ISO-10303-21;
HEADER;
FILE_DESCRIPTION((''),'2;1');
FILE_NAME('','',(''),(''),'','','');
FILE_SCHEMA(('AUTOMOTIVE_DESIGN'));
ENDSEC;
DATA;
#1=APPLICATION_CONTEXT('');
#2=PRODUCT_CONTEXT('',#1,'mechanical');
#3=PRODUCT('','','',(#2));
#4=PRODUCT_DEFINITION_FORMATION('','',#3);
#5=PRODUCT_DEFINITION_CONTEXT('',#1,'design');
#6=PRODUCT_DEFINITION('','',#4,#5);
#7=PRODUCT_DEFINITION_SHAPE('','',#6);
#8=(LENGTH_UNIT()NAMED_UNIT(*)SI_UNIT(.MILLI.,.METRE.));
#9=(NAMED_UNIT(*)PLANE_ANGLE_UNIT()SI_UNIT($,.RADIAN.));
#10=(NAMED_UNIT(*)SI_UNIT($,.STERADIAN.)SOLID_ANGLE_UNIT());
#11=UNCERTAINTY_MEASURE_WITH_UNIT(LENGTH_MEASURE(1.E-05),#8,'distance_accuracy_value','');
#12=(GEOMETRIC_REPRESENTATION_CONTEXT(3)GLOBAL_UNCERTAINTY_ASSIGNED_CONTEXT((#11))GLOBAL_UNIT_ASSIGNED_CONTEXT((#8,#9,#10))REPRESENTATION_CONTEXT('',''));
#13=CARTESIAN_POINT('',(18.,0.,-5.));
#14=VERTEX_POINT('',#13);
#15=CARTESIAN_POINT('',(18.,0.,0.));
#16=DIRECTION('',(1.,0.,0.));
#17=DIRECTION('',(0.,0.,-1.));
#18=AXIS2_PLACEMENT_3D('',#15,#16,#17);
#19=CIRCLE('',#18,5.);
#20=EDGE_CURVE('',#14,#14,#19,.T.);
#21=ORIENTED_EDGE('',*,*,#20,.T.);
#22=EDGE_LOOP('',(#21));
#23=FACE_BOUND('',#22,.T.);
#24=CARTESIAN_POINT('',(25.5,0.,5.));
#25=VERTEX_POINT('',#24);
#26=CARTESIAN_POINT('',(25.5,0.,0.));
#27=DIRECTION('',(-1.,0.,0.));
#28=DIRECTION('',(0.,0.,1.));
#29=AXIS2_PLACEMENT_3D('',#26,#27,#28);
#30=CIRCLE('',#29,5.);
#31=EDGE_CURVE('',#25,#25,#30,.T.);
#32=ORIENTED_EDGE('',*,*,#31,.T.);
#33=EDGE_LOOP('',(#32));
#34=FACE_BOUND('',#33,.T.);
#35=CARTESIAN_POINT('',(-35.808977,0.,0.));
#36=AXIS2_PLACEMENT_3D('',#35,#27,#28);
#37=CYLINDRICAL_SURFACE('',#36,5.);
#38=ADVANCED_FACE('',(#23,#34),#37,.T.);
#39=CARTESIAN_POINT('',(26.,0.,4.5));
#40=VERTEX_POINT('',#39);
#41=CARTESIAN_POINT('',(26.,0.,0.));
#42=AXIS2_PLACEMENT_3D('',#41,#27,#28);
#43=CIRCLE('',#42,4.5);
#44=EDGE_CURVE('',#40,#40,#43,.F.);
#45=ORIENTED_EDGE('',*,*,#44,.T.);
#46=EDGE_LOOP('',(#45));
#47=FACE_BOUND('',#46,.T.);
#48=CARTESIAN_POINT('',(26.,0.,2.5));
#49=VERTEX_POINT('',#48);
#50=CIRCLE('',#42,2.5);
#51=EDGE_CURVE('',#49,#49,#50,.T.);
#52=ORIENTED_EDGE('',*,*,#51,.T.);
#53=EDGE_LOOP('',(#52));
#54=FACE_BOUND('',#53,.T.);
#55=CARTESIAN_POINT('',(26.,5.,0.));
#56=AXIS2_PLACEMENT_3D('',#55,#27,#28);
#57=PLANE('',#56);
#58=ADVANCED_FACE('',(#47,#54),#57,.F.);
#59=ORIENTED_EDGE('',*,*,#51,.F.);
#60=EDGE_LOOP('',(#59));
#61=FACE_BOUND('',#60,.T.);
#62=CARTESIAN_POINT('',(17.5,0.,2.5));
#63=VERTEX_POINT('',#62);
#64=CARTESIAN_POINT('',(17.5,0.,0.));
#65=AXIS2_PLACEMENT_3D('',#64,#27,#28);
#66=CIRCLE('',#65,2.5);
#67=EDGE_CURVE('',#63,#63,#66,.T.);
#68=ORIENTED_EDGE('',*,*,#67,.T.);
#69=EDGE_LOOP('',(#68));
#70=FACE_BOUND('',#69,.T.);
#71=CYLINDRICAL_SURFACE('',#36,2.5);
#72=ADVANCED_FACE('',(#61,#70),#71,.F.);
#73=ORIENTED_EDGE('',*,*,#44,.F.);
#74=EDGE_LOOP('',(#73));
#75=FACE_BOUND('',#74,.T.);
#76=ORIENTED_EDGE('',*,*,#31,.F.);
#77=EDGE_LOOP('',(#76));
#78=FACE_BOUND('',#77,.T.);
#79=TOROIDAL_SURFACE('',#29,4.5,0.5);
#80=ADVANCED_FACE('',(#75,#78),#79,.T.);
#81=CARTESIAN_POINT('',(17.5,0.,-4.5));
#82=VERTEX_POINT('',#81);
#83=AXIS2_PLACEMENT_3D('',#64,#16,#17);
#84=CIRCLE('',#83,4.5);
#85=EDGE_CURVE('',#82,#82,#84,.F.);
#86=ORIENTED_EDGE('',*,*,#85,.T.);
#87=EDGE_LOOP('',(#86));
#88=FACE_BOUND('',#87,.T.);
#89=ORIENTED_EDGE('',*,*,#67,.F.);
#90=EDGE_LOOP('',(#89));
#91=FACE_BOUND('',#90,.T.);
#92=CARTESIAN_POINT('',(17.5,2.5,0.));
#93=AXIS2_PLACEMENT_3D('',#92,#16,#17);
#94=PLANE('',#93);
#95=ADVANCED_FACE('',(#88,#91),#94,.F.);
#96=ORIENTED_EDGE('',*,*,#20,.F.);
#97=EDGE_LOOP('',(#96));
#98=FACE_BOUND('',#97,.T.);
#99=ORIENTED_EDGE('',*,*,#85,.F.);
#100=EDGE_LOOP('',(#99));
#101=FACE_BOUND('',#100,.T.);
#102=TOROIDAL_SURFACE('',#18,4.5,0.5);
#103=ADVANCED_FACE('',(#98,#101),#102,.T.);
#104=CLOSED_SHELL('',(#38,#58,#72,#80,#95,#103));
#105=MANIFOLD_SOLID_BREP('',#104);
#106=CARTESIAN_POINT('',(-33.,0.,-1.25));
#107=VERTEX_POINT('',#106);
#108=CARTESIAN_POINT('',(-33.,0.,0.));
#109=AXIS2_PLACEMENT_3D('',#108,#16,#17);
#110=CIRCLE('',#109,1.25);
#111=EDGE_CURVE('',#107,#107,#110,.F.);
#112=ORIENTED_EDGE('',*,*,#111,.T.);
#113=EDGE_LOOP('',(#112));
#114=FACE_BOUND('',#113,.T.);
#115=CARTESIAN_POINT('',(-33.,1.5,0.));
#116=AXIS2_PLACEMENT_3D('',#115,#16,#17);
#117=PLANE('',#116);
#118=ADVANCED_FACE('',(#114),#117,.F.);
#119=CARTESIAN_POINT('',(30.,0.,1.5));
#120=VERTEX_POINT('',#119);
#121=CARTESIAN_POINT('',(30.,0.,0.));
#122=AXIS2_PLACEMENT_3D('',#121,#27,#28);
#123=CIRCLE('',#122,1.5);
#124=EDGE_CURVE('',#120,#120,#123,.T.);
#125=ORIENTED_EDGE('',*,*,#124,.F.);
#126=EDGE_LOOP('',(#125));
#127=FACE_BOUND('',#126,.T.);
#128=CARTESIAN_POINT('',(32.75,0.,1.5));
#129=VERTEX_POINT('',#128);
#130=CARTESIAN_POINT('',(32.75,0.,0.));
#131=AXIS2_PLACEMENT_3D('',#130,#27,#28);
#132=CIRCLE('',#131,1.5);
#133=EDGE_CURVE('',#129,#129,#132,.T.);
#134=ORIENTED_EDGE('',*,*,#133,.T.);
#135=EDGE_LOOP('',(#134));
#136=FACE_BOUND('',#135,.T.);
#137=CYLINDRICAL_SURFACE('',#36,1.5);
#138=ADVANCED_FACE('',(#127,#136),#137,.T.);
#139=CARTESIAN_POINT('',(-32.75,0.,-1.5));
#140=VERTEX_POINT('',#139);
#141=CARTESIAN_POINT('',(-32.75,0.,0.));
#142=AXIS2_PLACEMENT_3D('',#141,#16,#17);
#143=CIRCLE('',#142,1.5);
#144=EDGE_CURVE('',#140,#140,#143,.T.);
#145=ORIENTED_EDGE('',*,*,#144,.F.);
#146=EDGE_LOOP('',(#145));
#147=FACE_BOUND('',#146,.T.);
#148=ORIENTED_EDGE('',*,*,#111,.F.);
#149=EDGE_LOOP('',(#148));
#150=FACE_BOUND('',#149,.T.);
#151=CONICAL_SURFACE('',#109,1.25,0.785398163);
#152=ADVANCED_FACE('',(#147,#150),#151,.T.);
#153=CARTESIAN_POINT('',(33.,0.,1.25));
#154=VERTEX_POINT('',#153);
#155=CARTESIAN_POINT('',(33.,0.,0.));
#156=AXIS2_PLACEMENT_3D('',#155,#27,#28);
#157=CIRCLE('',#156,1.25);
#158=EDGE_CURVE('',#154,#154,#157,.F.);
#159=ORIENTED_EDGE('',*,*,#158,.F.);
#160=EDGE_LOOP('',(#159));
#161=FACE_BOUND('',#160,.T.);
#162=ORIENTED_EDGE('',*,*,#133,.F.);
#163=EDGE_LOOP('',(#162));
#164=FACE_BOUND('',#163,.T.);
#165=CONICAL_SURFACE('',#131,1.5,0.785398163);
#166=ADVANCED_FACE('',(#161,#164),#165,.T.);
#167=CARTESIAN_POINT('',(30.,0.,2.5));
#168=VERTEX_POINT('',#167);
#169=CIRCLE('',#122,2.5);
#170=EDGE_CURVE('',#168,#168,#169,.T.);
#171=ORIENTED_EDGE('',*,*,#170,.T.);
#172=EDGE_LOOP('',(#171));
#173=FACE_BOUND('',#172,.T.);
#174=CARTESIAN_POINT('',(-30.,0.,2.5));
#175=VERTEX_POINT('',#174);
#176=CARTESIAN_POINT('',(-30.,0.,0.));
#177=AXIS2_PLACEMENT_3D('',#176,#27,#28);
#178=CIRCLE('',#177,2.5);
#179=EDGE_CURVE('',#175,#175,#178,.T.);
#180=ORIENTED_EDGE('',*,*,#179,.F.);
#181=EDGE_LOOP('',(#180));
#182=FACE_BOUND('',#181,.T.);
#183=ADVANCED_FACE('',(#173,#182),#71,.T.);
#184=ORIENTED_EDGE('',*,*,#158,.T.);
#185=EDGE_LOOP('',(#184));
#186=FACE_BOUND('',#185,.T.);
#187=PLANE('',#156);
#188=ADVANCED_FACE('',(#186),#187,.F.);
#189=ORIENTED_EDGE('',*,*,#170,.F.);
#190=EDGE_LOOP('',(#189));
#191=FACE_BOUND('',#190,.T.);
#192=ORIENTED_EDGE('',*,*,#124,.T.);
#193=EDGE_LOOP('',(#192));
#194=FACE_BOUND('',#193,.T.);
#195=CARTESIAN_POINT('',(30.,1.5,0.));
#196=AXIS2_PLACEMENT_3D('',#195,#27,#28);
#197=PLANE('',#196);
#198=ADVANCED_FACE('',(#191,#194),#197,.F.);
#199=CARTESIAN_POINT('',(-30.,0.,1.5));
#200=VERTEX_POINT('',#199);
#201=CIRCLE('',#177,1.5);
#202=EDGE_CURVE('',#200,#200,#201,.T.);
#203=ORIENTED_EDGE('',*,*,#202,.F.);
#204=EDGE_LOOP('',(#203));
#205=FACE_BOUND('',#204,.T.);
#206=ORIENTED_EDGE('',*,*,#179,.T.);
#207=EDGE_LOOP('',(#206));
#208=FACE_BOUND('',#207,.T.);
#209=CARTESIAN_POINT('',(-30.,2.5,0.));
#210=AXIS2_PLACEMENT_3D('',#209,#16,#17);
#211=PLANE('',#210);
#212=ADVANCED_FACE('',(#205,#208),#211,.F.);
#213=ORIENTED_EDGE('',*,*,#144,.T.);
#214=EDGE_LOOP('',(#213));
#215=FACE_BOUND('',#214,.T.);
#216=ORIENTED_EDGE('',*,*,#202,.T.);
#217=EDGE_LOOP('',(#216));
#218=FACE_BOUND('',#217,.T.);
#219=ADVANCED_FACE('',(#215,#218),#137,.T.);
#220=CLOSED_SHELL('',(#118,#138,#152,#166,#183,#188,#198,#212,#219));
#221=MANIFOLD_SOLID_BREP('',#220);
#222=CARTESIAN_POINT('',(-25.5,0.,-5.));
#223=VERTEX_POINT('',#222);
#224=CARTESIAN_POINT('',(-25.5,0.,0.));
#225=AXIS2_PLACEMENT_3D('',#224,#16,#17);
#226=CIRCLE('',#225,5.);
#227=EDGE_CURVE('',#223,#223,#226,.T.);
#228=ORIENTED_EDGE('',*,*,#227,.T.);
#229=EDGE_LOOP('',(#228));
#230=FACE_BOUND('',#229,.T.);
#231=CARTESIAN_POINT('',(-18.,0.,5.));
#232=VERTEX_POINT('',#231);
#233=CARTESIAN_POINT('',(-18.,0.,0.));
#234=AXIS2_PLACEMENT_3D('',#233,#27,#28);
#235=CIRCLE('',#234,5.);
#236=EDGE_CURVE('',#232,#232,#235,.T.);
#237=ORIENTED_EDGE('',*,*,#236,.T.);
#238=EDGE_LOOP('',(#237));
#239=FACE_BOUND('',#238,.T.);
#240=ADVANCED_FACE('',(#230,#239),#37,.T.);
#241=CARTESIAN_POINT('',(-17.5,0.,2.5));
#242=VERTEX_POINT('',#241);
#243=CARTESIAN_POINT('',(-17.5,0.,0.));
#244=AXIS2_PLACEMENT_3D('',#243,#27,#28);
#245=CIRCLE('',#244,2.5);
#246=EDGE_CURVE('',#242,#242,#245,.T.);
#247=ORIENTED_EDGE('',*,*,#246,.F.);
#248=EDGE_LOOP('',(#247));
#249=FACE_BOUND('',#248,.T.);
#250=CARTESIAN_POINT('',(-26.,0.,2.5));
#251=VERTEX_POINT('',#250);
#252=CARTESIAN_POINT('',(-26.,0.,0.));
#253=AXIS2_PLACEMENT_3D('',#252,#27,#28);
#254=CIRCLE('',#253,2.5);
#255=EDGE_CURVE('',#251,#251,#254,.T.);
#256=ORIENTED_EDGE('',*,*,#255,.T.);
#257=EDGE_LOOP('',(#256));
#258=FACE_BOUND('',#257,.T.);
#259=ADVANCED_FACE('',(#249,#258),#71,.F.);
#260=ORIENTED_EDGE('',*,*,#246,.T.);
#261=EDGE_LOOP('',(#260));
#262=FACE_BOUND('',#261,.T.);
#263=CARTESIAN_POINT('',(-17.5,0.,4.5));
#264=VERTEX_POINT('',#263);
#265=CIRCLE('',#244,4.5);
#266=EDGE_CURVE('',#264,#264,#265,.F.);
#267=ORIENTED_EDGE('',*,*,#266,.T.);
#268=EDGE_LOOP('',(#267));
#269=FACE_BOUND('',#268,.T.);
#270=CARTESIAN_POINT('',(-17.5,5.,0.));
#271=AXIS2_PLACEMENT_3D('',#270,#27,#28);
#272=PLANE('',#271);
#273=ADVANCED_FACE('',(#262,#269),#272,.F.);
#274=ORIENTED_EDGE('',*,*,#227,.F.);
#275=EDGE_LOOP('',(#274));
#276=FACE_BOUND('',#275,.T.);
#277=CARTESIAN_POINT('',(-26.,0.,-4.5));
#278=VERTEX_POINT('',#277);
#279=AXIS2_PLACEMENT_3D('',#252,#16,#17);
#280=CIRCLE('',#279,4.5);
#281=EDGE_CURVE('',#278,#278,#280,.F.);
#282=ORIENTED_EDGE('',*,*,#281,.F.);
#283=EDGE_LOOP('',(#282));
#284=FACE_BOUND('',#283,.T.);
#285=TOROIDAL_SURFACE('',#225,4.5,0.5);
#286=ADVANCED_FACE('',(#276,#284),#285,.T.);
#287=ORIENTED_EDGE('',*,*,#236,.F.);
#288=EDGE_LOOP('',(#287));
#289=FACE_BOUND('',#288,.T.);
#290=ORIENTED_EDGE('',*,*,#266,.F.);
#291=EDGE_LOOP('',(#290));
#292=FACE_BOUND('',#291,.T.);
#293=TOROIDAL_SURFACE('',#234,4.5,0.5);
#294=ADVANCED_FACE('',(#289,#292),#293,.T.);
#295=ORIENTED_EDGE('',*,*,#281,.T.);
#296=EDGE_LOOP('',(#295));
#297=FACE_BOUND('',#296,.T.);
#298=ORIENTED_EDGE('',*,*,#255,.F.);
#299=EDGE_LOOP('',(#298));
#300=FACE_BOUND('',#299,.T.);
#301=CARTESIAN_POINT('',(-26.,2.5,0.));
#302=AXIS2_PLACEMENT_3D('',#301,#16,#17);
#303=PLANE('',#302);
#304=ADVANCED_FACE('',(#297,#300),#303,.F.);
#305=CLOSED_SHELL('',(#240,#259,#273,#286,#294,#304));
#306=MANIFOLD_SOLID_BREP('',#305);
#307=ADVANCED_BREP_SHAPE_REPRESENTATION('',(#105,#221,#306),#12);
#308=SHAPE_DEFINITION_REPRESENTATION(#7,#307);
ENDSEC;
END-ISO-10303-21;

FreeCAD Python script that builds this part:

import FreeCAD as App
import Part
import Sketcher

V = App.Vector
Q = App.Units.Quantity


def edges_at(feature, points):
    """Names of the edges that pass closest to the given points."""
    edges = feature.Shape.Edges
    near = lambda p: min(range(len(edges)), key=lambda i: edges[i].distToShape(Part.Vertex(*p))[0])
    return sorted({f"Edge{near(p) + 1}" for p in points})

doc = App.newDocument("Part")
body = doc.addObject("PartDesign::Body", "Body")

# Sketch on XY plane
sketch1 = body.newObject("Sketcher::SketchObject", "Sketch")
sketch1.AttachmentSupport = (doc.getObject("XY_Plane"), [""])
sketch1.MapMode = "FlatFace"
sketch1.addGeometry([
    Part.LineSegment(V(33, 0, 0), V(33, 1.5, 0)),  # 0
    Part.LineSegment(V(33, 1.5, 0), V(30, 1.5, 0)),  # 1
    Part.LineSegment(V(30, 1.5, 0), V(30, 2.5, 0)),  # 2
    Part.LineSegment(V(30, 2.5, 0), V(-30, 2.5, 0)),  # 3
    Part.LineSegment(V(-30, 2.5, 0), V(-30, 1.5, 0)),  # 4
    Part.LineSegment(V(-30, 1.5, 0), V(-33, 1.5, 0)),  # 5
    Part.LineSegment(V(-33, 1.5, 0), V(-33, 0, 0)),  # 6
    Part.LineSegment(V(-33, 0, 0), V(33, 0, 0)),  # 7
], False)
sketch1.addConstraint([
    Sketcher.Constraint("Coincident", 0, 2, 1, 1),
    Sketcher.Constraint("Coincident", 1, 2, 2, 1),
    Sketcher.Constraint("Coincident", 2, 2, 3, 1),
    Sketcher.Constraint("Coincident", 3, 2, 4, 1),
    Sketcher.Constraint("Coincident", 4, 2, 5, 1),
    Sketcher.Constraint("Coincident", 5, 2, 6, 1),
    Sketcher.Constraint("Coincident", 6, 2, 7, 1),
    Sketcher.Constraint("Coincident", 7, 2, 0, 1),
    Sketcher.Constraint("Vertical", 0),
    Sketcher.Constraint("Horizontal", 1),
    Sketcher.Constraint("Vertical", 2),
    Sketcher.Constraint("Horizontal", 3),
    Sketcher.Constraint("Vertical", 4),
    Sketcher.Constraint("Horizontal", 5),
    Sketcher.Constraint("Vertical", 6),
    Sketcher.Constraint("Horizontal", 7),
    Sketcher.Constraint("Symmetric", 6, 2, 7, 2, -1, 1),
    Sketcher.Constraint("Symmetric", 1, 2, 4, 2, -2),
    Sketcher.Constraint("DistanceX", 1, 2, 1, 1, Q("3 mm")),
    Sketcher.Constraint("DistanceX", 3, 2, 3, 1, Q("60 mm")),
    Sketcher.Constraint("DistanceY", 2, 1, 2, 2, Q("1 mm")),
    Sketcher.Constraint("DistanceY", 0, 1, 0, 2, Q("1.5 mm")),
])
revolution = body.newObject("PartDesign::Revolution", "Revolution")
revolution.Profile = sketch1
revolution.ReferenceAxis = (sketch1, ["H_Axis"])
revolution.Angle = 360
doc.recompute()

chamfer = body.newObject("PartDesign::Chamfer", "Chamfer")
chamfer.Base = (revolution, edges_at(revolution, [(-33, 0, -1.5), (33, 0, -1.5)]))
chamfer.Size = 0.25
body2 = doc.addObject("PartDesign::Body", "Body001")
body2.AllowCompound = True

# Sketch on XY plane
sketch2 = body2.newObject("Sketcher::SketchObject", "Sketch001")
sketch2.AttachmentSupport = (doc.getObject("XY_Plane001"), [""])
sketch2.MapMode = "FlatFace"
sketch2.addGeometry([
    Part.LineSegment(V(-26, 5, 0), V(-26, 2.5, 0)),  # 0
    Part.LineSegment(V(-26, 2.5, 0), V(-17.5, 2.5, 0)),  # 1
    Part.LineSegment(V(-17.5, 2.5, 0), V(-17.5, 5, 0)),  # 2
    Part.LineSegment(V(-17.5, 5, 0), V(-26, 5, 0)),  # 3
    Part.LineSegment(V(17.5, 5, 0), V(17.5, 2.5, 0)),  # 4
    Part.LineSegment(V(17.5, 2.5, 0), V(26, 2.5, 0)),  # 5
    Part.LineSegment(V(26, 2.5, 0), V(26, 5, 0)),  # 6
    Part.LineSegment(V(26, 5, 0), V(17.5, 5, 0)),  # 7
], False)
sketch2.addConstraint([
    Sketcher.Constraint("Coincident", 0, 2, 1, 1),
    Sketcher.Constraint("Coincident", 1, 2, 2, 1),
    Sketcher.Constraint("Coincident", 2, 2, 3, 1),
    Sketcher.Constraint("Coincident", 3, 2, 0, 1),
    Sketcher.Constraint("Coincident", 4, 2, 5, 1),
    Sketcher.Constraint("Coincident", 5, 2, 6, 1),
    Sketcher.Constraint("Coincident", 6, 2, 7, 1),
    Sketcher.Constraint("Coincident", 7, 2, 4, 1),
    Sketcher.Constraint("Vertical", 0),
    Sketcher.Constraint("Horizontal", 1),
    Sketcher.Constraint("Vertical", 2),
    Sketcher.Constraint("Horizontal", 3),
    Sketcher.Constraint("Vertical", 4),
    Sketcher.Constraint("Horizontal", 5),
    Sketcher.Constraint("Vertical", 6),
    Sketcher.Constraint("Horizontal", 7),
    Sketcher.Constraint("Symmetric", 1, 2, 4, 2, -2),
    Sketcher.Constraint("Symmetric", 3, 2, 6, 2, -2),
    Sketcher.Constraint("DistanceX", 1, 1, 1, 2, Q("8.5 mm")),
    Sketcher.Constraint("DistanceY", 0, 2, 0, 1, Q("2.5 mm")),
    Sketcher.Constraint("DistanceX", 0, 2, -1, 1, Q("26 mm")),
    Sketcher.Constraint("DistanceY", -1, 1, 2, 2, Q("5 mm")),
])
revolution2 = body2.newObject("PartDesign::Revolution", "Revolution001")
revolution2.Profile = sketch2
revolution2.ReferenceAxis = (sketch2, ["H_Axis"])
revolution2.Angle = 360
doc.recompute()

fillet = body2.newObject("PartDesign::Fillet", "Fillet")
fillet.Base = (revolution2, edges_at(revolution2, [(-17.5, 0, -5), (-26, 0, -5)]))
fillet.Radius = 0.5
doc.recompute()

fillet2 = body2.newObject("PartDesign::Fillet", "Fillet001")
fillet2.Base = (fillet, edges_at(fillet, [(26, 0, -5), (17.5, 0, -5)]))
fillet2.Radius = 0.5

doc.recompute()
